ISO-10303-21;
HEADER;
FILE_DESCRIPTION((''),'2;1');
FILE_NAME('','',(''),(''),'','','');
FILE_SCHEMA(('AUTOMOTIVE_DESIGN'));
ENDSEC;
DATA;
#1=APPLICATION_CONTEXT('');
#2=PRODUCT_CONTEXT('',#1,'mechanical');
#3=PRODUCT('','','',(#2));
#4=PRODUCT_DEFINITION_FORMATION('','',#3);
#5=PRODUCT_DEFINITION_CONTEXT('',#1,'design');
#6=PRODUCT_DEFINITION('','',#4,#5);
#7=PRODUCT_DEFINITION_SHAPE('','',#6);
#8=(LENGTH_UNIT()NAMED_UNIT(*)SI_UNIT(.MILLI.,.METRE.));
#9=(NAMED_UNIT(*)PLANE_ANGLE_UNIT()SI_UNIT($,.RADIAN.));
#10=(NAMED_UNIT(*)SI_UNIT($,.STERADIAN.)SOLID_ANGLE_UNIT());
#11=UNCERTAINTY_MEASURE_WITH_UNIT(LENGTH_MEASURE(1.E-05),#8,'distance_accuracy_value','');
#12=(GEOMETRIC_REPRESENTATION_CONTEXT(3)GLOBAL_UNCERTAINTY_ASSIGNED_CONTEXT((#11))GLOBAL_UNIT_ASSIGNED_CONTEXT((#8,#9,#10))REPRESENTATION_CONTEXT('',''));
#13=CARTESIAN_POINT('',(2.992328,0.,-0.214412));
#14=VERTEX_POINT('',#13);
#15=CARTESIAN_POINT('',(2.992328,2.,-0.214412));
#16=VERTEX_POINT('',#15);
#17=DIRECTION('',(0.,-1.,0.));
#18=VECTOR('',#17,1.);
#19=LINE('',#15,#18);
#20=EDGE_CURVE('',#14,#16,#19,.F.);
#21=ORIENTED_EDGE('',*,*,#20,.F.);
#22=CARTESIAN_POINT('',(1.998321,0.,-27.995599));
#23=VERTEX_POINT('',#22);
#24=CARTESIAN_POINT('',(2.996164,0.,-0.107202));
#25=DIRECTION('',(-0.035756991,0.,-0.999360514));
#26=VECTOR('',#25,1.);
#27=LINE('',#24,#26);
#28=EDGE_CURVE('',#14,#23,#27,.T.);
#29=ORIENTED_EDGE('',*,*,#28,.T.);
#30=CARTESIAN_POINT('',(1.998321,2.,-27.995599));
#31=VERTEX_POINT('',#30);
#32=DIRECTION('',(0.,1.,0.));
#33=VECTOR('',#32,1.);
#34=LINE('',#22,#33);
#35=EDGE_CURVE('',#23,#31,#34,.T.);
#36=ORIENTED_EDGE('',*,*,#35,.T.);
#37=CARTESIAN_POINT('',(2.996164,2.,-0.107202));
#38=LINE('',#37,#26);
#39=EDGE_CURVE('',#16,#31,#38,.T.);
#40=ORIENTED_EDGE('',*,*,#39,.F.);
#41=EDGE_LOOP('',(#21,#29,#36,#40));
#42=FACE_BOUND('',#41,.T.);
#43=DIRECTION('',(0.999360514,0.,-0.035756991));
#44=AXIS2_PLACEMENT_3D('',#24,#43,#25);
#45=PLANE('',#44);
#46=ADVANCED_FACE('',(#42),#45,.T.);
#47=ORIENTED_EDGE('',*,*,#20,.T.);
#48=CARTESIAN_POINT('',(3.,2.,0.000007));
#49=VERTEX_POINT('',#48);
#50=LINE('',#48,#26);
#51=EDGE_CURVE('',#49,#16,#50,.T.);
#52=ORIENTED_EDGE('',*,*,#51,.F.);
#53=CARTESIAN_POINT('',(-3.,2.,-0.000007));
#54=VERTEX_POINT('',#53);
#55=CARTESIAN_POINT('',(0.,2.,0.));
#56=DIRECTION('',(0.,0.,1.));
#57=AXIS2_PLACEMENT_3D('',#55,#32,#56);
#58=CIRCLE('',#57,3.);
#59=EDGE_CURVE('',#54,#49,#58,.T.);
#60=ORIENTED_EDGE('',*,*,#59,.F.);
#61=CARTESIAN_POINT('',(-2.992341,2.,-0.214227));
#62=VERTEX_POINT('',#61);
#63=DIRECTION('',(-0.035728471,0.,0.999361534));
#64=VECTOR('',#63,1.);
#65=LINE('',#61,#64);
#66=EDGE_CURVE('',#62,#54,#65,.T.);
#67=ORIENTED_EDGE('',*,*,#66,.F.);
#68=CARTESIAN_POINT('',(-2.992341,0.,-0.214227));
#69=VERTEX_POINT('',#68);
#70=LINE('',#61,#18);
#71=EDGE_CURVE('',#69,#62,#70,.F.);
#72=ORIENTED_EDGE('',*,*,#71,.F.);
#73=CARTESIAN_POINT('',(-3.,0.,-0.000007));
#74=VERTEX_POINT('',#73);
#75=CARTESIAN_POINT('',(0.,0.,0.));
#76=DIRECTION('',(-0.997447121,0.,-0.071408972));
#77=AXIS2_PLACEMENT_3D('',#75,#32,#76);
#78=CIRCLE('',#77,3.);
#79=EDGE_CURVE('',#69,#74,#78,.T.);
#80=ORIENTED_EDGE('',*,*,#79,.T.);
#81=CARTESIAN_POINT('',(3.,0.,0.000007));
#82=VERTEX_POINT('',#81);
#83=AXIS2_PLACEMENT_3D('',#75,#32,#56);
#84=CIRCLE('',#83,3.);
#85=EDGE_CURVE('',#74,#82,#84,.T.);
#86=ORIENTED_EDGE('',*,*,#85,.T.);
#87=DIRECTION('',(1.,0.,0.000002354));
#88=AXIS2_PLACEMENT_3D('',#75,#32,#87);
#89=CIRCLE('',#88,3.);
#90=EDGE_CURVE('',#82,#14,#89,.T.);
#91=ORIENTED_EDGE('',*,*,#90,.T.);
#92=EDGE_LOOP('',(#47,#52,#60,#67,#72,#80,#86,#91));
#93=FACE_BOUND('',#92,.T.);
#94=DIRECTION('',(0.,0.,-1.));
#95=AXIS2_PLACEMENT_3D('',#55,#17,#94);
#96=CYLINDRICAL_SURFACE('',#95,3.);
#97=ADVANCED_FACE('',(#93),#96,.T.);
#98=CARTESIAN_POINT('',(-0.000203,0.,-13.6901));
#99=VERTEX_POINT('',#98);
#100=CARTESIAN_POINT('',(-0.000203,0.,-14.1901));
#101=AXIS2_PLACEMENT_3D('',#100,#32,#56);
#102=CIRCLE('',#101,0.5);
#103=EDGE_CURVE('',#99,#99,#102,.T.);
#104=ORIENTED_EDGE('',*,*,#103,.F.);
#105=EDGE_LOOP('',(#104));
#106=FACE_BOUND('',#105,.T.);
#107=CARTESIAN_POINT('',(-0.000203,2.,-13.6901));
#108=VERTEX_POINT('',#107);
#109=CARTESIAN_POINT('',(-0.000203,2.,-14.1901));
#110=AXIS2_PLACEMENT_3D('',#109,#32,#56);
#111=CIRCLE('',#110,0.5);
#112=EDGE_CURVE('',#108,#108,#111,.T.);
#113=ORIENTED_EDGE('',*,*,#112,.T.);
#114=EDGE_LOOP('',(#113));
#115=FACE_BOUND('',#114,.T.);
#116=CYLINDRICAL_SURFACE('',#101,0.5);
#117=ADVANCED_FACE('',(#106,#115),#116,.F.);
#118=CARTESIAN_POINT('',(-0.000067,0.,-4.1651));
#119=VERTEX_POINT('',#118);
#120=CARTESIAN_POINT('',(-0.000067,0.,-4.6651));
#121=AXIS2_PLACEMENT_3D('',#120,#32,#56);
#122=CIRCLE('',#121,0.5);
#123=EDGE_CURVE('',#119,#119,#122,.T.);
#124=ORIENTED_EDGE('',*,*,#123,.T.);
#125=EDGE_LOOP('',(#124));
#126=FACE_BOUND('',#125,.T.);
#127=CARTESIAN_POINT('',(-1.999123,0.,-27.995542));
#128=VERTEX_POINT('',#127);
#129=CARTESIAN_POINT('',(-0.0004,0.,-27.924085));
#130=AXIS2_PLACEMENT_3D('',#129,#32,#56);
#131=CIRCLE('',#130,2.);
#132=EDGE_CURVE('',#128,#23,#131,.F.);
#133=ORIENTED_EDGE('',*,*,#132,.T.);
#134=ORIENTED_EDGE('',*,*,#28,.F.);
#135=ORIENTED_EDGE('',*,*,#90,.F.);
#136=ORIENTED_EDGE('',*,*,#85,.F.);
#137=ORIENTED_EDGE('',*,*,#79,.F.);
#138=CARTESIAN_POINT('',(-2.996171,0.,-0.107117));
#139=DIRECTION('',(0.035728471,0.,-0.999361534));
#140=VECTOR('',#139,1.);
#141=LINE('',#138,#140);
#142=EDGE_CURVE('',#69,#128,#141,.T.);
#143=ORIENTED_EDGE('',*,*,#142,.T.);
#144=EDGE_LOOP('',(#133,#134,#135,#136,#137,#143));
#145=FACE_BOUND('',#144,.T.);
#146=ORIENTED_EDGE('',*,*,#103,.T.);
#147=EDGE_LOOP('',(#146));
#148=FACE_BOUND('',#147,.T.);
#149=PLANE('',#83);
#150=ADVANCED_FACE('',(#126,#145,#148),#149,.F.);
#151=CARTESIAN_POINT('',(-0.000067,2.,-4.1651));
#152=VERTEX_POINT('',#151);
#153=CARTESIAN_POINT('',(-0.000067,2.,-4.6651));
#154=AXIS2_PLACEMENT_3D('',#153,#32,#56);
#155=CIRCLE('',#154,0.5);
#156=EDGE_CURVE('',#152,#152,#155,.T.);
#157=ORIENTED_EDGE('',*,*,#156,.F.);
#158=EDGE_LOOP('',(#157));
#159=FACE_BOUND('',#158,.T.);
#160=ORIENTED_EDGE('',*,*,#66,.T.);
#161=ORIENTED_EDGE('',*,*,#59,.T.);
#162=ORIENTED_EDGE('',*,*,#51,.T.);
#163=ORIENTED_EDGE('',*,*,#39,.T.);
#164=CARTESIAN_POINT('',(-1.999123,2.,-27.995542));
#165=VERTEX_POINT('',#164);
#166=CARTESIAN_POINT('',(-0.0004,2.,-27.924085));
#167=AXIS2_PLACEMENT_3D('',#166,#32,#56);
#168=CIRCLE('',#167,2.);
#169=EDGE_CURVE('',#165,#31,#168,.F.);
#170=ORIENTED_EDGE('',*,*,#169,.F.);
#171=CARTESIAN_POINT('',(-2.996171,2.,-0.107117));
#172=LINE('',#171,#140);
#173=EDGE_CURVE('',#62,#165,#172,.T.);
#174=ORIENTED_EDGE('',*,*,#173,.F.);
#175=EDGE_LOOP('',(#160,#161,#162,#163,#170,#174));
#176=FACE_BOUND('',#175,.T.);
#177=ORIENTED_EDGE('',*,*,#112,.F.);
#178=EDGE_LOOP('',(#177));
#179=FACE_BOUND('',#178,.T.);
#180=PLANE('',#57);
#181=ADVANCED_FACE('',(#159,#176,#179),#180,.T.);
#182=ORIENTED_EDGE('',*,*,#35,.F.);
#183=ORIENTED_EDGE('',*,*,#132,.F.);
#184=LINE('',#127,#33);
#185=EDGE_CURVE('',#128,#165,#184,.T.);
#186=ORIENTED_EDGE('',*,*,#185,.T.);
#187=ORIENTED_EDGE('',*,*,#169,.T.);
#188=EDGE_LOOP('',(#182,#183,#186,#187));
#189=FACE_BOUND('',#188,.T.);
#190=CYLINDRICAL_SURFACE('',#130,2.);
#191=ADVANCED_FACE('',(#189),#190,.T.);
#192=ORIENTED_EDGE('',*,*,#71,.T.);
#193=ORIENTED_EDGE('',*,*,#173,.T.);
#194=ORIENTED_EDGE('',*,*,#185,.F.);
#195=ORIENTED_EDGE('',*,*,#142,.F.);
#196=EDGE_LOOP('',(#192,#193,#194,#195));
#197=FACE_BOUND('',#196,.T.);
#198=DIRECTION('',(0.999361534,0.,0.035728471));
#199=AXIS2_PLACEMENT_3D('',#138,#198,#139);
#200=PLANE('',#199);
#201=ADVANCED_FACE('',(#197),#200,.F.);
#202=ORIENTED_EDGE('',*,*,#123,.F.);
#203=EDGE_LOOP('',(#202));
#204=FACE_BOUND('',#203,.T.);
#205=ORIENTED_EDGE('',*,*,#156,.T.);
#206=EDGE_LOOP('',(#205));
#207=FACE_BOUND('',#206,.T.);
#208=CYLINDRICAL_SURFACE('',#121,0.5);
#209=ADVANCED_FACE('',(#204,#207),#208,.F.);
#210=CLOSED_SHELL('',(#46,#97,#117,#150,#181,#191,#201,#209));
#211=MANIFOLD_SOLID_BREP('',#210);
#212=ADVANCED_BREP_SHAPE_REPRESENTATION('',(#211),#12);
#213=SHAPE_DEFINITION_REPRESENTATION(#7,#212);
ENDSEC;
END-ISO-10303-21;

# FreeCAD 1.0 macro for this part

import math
import FreeCAD as App
import Part
import Sketcher

doc = App.newDocument("Part")
params = doc.addObject("Spreadsheet::Sheet", "Params")
for row, (alias, value) in enumerate([
    ("sketch1_diameter", "6 mm"),
    ("pad1_length", "2 mm"),
    ("sketch2_radius", "3 mm"),
    ("sketch2_radius2", "2 mm"),
    ("pad2_length", "2 mm"),
    ("sketch3_diameter", "1 mm"),
    ("pocket1_length", "2 mm"),
], start=1):
    params.set(f"A{row}", alias)
    params.set(f"B{row}", "=" + value)
    params.setAlias(f"B{row}", alias)

body = doc.addObject("PartDesign::Body", "Body")

# Sketch on XZ plane
sketch1 = body.newObject("Sketcher::SketchObject", "Sketch")
sketch1.AttachmentSupport = (doc.getObject("XZ_Plane"), [""])
sketch1.MapMode = "FlatFace"
sketch1.addGeometry(Part.Circle(App.Vector(0, 0, 0), App.Vector(0, 0, 1), 3), False)
sketch1.addConstraint([
    Sketcher.Constraint("Coincident", 0, 3, -1, 1),
    Sketcher.Constraint("Diameter", 0, 6.0),
])
sketch1.setExpression("Constraints[1]", "Params.sketch1_diameter")
pad1 = body.newObject("PartDesign::Pad", "Pad")
pad1.Profile = sketch1
pad1.setExpression("Length", "Params.pad1_length")
pad1.Reversed = True

# Sketch on XZ plane
sketch2 = body.newObject("Sketcher::SketchObject", "Sketch001")
sketch2.AttachmentSupport = (doc.getObject("XZ_Plane"), [""])
sketch2.MapMode = "FlatFace"
sketch2.AttachmentOffset = App.Placement(App.Vector(0, 0, -2), App.Rotation())
sketch2.addGeometry([
    Part.ArcOfCircle(Part.Circle(App.Vector(0, 0, 0), App.Vector(0, 0, 1), 3), math.radians(-4.098458), math.radians(184.094918)),
    Part.LineSegment(App.Vector(2.992328, -0.214412, 0), App.Vector(1.998321, -27.995599, 0)),
    Part.ArcOfCircle(Part.Circle(App.Vector(-0.0004, -27.924085, 0), App.Vector(0, 0, 1), 2), math.radians(-177.952474), math.radians(-2.049161)),
    Part.LineSegment(App.Vector(-1.999123, -27.995542, 0), App.Vector(-2.992341, -0.214227, 0)),
], False)
sketch2.addConstraint([
    Sketcher.Constraint("Coincident", 0, 1, 1, 1),
    Sketcher.Constraint("Tangent", 1, 2, 2, 2),
    Sketcher.Constraint("Tangent", 2, 1, 3, 1),
    Sketcher.Constraint("Coincident", 3, 2, 0, 2),
    Sketcher.Constraint("Coincident", 0, 3, -1, 1),
    Sketcher.Constraint("Radius", 0, 3.0),
    Sketcher.Constraint("Radius", 2, 2.0),
    Sketcher.Constraint("DistanceX", 2, 3, -1, 1, 0.0004),
    Sketcher.Constraint("DistanceY", 1, 2, -1, 1, 27.995599),
    Sketcher.Constraint("DistanceX", -1, 1, 0, 1, 2.992328),
    Sketcher.Constraint("DistanceX", 3, 2, -1, 1, 2.992341),
])
sketch2.setExpression("Constraints[5]", "Params.sketch2_radius")
sketch2.setExpression("Constraints[6]", "Params.sketch2_radius2")
pad2 = body.newObject("PartDesign::Pad", "Pad001")
pad2.Profile = sketch2
pad2.setExpression("Length", "Params.pad2_length")

# Sketch on XZ plane
sketch3 = body.newObject("Sketcher::SketchObject", "Sketch002")
sketch3.AttachmentSupport = (doc.getObject("XZ_Plane"), [""])
sketch3.MapMode = "FlatFace"
sketch3.AttachmentOffset = App.Placement(App.Vector(0, 0, -2), App.Rotation())
sketch3.addGeometry([
    Part.Circle(App.Vector(-0.000203, -14.1901, 0), App.Vector(0, 0, 1), 0.5),
    Part.Circle(App.Vector(-0.000067, -4.6651, 0), App.Vector(0, 0, 1), 0.5),
], False)
sketch3.addConstraint([
    Sketcher.Constraint("Equal", 0, 1),
    Sketcher.Constraint("Diameter", 0, 1.0),
    Sketcher.Constraint("DistanceY", 0, 3, 1, 3, 9.525),
    Sketcher.Constraint("DistanceY", 0, 3, -1, 1, 14.1901),
    Sketcher.Constraint("DistanceX", 0, 3, -1, 1, 0.000203),
    Sketcher.Constraint("DistanceX", 0, 3, 1, 3, 0.000136),
])
sketch3.setExpression("Constraints[1]", "Params.sketch3_diameter")
pocket1 = body.newObject("PartDesign::Pocket", "Pocket")
pocket1.Profile = sketch3
pocket1.setExpression("Length", "Params.pocket1_length")
pocket1.Reversed = True

doc.recompute()
